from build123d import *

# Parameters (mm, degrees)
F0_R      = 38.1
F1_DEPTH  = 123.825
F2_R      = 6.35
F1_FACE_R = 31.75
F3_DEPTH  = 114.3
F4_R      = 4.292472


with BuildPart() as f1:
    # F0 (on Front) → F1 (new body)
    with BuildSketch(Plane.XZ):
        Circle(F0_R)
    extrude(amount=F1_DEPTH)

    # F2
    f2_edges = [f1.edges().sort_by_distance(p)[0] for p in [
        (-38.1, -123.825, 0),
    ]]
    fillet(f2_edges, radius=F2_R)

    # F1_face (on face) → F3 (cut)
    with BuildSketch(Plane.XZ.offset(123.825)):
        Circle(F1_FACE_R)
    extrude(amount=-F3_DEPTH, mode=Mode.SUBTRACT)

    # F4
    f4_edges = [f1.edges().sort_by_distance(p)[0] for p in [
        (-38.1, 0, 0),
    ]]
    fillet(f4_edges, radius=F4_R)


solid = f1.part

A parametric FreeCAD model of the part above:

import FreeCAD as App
import Part
import Sketcher
Q = App.Units.Quantity


def edges_at(feature, points):
    """Names of the edges that pass closest to the given points."""
    edges = feature.Shape.Edges
    near = lambda p: min(range(len(edges)), key=lambda i: edges[i].distToShape(Part.Vertex(*p))[0])
    return sorted({f"Edge{near(p) + 1}" for p in points})

doc = App.newDocument("Part")
params = doc.addObject("Spreadsheet::Sheet", "Params")
for row, (alias, value) in enumerate([
    ("sketch1_diameter", "3 in"),
    ("pad1_length", "4.875 in"),
    ("fillet_radius", "0.25 in"),
    ("sketch2_diameter", "2.5 in"),
    ("pocket1_length", "4.5 in"),
    ("fillet2_radius", "4.292472 mm"),
], start=1):
    params.set(f"A{row}", alias)
    params.set(f"B{row}", "=" + value)
    params.setAlias(f"B{row}", alias)

body = doc.addObject("PartDesign::Body", "Body")

sketch1 = body.newObject("Sketcher::SketchObject", "Sketch")
sketch1.AttachmentSupport = (doc.getObject("XZ_Plane"), [""])
sketch1.MapMode = "FlatFace"
sketch1.addGeometry(Part.Circle(App.Vector(0, 0, 0), App.Vector(0, 0, 1), 38), False)
sketch1.addConstraint(Sketcher.Constraint("Coincident", 0, 3, -1, 1))
sketch1.addConstraint(Sketcher.Constraint("Diameter", 0, Q("3 in")))
sketch1.setExpression("Constraints[1]", "Params.sketch1_diameter")
pad1 = body.newObject("PartDesign::Pad", "Pad")
pad1.Profile = sketch1
pad1.setExpression("Length", "Params.pad1_length")
doc.recompute()

fillet = body.newObject("PartDesign::Fillet", "Fillet")
fillet.Base = (pad1, edges_at(pad1, [(-38.1, -123.825, 0)]))
fillet.setExpression("Radius", "Params.fillet_radius")

sketch2 = body.newObject("Sketcher::SketchObject", "Sketch001")
sketch2.AttachmentSupport = (doc.getObject("XZ_Plane"), [""])
sketch2.MapMode = "FlatFace"
sketch2.AttachmentOffset = App.Placement(App.Vector(0, 0, 4.875 * 25.4), App.Rotation())
sketch2.addGeometry(Part.Circle(App.Vector(0, 0, 0), App.Vector(0, 0, 1), 32), False)
sketch2.addConstraint(Sketcher.Constraint("Coincident", 0, 3, -1, 1))
sketch2.addConstraint(Sketcher.Constraint("Diameter", 0, Q("2.5 in")))
sketch2.setExpression("Constraints[1]", "Params.sketch2_diameter")
pocket1 = body.newObject("PartDesign::Pocket", "Pocket")
pocket1.Profile = sketch2
pocket1.setExpression("Length", "Params.pocket1_length")
doc.recompute()

fillet2 = body.newObject("PartDesign::Fillet", "Fillet001")
fillet2.Base = (pocket1, edges_at(pocket1, [(-38.1, 0, 0)]))
fillet2.setExpression("Radius", "Params.fillet2_radius")

doc.recompute()
